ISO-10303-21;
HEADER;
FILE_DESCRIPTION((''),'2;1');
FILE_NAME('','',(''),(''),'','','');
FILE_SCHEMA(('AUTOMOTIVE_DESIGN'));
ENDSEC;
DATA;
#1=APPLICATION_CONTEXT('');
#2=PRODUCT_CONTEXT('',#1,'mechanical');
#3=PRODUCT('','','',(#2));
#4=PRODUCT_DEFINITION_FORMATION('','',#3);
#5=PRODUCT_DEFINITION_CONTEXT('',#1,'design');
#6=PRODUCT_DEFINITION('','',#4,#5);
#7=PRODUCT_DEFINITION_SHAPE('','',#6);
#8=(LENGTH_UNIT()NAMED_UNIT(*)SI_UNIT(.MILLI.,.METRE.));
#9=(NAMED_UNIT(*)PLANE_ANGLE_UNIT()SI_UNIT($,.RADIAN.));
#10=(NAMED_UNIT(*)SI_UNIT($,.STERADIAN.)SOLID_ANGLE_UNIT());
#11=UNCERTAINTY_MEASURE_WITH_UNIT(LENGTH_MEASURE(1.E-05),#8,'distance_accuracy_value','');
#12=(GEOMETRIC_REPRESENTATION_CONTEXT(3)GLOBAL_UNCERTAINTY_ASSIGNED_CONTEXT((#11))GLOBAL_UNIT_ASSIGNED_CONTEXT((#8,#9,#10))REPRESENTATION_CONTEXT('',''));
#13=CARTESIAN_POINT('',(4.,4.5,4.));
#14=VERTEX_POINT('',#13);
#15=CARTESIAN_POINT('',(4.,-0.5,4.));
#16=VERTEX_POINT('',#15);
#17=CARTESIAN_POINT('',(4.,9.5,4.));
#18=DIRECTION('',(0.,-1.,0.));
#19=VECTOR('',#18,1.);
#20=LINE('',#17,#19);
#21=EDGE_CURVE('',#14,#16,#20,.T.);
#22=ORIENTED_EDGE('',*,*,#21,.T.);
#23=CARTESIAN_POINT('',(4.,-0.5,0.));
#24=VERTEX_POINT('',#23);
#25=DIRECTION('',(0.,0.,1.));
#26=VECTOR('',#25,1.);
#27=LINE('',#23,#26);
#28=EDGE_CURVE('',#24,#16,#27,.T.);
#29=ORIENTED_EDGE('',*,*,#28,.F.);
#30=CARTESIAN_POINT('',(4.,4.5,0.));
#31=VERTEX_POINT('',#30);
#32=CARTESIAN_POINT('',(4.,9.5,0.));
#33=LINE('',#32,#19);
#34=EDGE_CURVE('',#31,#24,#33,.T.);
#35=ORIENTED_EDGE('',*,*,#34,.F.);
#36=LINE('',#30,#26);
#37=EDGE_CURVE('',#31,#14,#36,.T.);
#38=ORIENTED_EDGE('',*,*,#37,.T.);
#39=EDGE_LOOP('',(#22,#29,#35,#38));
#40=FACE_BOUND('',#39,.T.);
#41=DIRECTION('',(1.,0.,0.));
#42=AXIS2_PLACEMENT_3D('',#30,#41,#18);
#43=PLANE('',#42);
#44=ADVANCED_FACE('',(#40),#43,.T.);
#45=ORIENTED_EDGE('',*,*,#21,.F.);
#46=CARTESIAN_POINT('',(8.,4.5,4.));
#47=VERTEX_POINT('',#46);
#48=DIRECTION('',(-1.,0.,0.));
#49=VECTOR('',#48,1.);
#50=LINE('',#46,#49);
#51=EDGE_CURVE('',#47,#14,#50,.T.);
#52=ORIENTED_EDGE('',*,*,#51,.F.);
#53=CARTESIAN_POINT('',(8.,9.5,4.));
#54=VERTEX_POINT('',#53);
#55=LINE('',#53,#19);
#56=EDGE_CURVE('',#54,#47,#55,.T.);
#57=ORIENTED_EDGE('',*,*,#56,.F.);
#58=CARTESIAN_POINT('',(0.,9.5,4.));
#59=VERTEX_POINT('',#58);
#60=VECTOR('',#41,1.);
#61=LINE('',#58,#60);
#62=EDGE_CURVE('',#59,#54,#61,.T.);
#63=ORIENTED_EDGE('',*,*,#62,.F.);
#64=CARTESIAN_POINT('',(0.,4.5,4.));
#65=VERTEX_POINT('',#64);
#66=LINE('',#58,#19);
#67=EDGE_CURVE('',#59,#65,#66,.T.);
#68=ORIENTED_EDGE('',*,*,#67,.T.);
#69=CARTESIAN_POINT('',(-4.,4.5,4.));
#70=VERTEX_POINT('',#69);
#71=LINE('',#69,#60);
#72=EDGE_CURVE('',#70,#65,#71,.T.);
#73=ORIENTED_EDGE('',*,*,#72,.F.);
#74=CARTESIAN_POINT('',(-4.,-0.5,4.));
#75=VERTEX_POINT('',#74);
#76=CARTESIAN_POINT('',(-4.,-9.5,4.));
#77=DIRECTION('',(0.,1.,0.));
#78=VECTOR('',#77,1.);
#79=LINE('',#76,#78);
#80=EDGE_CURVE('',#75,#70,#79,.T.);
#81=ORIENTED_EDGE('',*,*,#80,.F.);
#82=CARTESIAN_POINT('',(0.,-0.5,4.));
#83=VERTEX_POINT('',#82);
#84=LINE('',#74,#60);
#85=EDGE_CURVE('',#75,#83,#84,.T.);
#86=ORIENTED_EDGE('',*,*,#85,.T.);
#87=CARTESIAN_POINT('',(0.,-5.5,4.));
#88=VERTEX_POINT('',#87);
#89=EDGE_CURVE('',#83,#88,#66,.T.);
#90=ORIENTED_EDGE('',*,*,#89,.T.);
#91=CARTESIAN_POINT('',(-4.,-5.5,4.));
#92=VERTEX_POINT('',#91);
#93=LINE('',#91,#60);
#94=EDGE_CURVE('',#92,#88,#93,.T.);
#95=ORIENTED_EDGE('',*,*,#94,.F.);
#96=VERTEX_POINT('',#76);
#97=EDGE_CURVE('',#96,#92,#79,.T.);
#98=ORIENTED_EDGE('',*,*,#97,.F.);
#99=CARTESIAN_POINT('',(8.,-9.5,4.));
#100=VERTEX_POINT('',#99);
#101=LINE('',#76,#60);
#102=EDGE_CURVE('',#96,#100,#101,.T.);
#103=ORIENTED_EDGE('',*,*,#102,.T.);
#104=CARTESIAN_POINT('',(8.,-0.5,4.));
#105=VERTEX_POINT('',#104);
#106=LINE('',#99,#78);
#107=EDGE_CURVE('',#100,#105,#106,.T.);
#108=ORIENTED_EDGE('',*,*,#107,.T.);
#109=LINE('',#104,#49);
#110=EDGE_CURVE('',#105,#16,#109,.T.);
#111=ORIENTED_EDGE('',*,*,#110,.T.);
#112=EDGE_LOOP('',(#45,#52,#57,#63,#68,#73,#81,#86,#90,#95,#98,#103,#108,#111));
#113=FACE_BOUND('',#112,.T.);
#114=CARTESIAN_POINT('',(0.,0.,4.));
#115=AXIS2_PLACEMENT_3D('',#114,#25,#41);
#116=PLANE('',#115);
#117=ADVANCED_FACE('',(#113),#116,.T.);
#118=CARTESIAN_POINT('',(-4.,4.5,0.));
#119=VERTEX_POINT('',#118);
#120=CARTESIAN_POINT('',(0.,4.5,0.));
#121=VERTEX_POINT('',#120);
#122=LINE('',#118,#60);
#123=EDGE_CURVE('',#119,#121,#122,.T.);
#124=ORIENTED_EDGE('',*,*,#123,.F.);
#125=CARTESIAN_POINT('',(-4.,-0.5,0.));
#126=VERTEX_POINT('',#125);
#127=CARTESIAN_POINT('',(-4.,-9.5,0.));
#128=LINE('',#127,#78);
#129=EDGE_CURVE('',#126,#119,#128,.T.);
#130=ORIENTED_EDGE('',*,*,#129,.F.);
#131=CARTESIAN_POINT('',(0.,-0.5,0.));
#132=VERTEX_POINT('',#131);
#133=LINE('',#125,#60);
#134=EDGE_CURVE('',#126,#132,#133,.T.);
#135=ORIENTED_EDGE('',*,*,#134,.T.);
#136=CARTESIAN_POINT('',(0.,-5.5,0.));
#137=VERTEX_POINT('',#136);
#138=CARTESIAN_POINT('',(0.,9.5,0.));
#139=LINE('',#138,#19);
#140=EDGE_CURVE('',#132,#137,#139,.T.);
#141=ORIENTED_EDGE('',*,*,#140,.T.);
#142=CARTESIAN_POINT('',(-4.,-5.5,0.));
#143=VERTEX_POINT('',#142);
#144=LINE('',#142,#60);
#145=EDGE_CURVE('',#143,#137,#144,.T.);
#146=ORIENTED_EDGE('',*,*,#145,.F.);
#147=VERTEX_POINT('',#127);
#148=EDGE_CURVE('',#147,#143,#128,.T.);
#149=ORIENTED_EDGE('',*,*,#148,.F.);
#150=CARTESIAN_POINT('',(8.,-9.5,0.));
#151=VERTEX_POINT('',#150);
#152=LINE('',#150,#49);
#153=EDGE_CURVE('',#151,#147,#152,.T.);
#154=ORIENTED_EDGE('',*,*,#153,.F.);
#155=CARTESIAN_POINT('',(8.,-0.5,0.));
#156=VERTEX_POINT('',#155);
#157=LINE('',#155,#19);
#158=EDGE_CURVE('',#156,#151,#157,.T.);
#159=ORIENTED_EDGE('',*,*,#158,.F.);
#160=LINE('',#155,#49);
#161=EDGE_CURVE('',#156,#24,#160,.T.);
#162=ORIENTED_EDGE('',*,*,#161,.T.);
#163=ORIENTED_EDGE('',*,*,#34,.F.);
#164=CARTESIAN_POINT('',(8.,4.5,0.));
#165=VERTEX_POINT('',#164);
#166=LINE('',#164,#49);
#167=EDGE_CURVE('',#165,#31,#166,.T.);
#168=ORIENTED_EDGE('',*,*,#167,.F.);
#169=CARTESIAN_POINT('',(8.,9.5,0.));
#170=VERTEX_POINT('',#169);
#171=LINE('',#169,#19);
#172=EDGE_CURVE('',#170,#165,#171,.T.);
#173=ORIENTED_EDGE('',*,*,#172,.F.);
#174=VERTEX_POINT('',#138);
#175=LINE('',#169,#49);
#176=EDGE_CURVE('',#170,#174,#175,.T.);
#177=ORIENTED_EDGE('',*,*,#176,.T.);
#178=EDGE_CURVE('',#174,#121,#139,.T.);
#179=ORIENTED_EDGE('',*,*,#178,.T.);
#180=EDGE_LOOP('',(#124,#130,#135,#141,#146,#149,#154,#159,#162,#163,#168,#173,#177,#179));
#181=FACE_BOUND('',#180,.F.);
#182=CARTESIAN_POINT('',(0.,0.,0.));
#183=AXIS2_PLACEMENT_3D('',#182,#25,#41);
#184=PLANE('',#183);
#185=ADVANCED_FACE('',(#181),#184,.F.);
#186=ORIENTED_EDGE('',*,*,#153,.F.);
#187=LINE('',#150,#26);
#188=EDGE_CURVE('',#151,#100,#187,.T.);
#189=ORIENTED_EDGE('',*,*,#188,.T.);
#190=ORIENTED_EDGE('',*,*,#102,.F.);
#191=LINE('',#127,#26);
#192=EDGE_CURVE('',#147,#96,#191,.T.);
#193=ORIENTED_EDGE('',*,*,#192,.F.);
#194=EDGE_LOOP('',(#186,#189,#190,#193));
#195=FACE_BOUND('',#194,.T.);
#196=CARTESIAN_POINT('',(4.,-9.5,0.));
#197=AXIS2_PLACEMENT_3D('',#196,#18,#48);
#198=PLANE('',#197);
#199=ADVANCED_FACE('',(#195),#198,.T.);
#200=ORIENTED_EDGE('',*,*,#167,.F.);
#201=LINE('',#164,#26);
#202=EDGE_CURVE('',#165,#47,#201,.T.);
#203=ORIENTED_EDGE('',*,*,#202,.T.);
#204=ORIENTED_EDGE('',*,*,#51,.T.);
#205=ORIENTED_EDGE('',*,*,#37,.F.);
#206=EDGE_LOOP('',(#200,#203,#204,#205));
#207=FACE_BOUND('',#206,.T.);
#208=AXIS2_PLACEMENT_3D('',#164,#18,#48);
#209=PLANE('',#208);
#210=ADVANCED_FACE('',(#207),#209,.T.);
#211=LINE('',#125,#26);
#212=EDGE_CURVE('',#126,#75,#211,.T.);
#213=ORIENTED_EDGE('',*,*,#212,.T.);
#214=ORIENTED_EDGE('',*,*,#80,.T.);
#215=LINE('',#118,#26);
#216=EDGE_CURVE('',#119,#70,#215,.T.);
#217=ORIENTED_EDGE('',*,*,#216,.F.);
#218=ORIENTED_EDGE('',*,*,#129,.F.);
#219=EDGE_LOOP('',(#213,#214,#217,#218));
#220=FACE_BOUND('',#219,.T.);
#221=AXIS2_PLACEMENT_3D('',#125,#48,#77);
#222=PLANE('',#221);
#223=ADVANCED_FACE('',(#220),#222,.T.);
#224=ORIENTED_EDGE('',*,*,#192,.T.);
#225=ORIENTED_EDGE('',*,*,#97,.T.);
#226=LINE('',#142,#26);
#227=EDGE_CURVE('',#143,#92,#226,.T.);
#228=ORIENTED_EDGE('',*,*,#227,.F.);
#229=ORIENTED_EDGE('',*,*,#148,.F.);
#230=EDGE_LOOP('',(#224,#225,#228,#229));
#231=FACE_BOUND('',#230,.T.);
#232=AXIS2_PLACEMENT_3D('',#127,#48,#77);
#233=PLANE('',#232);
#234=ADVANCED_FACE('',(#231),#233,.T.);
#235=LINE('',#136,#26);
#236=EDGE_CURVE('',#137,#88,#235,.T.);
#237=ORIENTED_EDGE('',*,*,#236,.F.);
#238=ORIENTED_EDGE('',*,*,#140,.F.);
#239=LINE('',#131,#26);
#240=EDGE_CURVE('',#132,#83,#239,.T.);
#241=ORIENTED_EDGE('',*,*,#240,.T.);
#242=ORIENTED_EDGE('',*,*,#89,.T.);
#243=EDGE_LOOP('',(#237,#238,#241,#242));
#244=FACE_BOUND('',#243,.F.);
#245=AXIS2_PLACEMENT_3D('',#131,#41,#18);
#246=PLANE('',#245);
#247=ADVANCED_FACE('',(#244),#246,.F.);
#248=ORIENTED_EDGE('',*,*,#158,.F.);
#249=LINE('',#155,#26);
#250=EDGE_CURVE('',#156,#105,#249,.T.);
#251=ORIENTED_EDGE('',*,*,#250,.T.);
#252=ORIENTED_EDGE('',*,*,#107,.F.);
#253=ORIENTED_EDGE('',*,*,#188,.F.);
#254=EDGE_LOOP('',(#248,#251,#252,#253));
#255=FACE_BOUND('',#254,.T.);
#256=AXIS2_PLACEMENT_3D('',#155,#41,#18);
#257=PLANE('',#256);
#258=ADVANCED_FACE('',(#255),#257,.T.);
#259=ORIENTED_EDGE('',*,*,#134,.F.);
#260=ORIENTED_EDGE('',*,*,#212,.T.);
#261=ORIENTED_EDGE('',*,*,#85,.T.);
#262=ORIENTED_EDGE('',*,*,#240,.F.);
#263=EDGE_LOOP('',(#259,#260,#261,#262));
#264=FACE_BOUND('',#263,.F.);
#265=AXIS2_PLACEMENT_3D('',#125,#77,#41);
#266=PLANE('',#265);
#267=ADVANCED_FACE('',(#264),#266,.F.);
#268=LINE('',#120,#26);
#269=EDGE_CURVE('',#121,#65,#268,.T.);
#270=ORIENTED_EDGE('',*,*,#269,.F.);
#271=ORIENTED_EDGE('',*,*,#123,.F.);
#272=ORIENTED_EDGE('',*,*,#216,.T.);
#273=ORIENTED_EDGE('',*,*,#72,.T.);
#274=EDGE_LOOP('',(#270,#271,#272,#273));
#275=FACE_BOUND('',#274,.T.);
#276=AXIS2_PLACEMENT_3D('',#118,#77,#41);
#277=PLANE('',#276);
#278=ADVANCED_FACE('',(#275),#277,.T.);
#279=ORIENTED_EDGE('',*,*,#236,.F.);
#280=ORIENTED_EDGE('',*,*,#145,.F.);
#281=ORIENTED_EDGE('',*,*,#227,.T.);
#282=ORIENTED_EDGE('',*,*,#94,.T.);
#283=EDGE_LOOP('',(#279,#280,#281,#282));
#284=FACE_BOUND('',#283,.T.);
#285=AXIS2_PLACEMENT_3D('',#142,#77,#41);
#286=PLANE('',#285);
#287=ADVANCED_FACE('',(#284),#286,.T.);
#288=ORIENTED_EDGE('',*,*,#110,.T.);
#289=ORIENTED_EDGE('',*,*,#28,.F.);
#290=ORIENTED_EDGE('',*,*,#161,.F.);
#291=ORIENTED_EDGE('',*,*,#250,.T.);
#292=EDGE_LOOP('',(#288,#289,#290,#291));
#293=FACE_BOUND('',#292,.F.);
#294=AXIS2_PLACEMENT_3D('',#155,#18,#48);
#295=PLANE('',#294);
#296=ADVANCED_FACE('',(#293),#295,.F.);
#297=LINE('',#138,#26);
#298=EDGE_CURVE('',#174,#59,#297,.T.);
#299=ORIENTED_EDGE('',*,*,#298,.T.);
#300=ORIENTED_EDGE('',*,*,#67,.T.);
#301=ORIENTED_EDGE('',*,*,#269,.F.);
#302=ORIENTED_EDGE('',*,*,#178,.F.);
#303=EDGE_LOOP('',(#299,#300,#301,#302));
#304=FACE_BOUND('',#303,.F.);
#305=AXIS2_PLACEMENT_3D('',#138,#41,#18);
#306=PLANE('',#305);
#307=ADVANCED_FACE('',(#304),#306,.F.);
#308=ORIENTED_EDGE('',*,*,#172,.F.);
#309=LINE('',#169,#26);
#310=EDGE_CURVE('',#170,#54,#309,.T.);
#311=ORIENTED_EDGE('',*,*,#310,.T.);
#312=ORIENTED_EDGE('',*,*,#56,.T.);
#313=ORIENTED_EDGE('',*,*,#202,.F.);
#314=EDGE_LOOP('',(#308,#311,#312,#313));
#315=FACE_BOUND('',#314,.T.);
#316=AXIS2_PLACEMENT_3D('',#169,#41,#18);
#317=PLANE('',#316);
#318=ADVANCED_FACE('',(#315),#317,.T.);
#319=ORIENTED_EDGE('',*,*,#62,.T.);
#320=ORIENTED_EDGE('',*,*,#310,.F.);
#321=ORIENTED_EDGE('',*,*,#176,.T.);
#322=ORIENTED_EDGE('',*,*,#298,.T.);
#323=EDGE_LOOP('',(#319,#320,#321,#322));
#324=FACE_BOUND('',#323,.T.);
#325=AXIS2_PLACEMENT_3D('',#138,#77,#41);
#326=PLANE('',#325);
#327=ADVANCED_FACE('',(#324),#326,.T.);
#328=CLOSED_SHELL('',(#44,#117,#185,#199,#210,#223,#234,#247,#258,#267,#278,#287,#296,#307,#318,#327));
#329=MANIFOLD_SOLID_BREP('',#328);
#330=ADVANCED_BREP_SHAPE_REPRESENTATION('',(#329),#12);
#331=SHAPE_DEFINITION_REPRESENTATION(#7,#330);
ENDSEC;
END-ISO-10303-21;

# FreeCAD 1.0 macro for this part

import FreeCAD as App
import Part
import Sketcher
from FreeCAD import Vector

doc = App.newDocument("Part")
body = doc.addObject("PartDesign::Body", "Body")

sketch1 = doc.addObject("Sketcher::SketchObject", "Sketch")
body.addObject(sketch1)
sketch1.AttachmentSupport = (doc.XY_Plane, [""])
sketch1.MapMode = "FlatFace"
sketch1.addGeometry(Part.LineSegment(Vector(0, 9.5, 0), Vector(0, 4.5, 0)), False)
sketch1.addGeometry(Part.LineSegment(Vector(0, 4.5, 0), Vector(-4, 4.5, 0)), False)
sketch1.addGeometry(Part.LineSegment(Vector(-4, 4.5, 0), Vector(-4, -0.5, 0)), False)
sketch1.addGeometry(Part.LineSegment(Vector(-4, -0.5, 0), Vector(0, -0.5, 0)), False)
sketch1.addGeometry(Part.LineSegment(Vector(0, -0.5, 0), Vector(0, -5.5, 0)), False)
sketch1.addGeometry(Part.LineSegment(Vector(0, -5.5, 0), Vector(-4, -5.5, 0)), False)
sketch1.addGeometry(Part.LineSegment(Vector(-4, -5.5, 0), Vector(-4, -9.5, 0)), False)
sketch1.addGeometry(Part.LineSegment(Vector(-4, -9.5, 0), Vector(8, -9.5, 0)), False)
sketch1.addGeometry(Part.LineSegment(Vector(8, -9.5, 0), Vector(8, -0.5, 0)), False)
sketch1.addGeometry(Part.LineSegment(Vector(8, -0.5, 0), Vector(4, -0.5, 0)), False)
sketch1.addGeometry(Part.LineSegment(Vector(4, -0.5, 0), Vector(4, 4.5, 0)), False)
sketch1.addGeometry(Part.LineSegment(Vector(4, 4.5, 0), Vector(8, 4.5, 0)), False)
sketch1.addGeometry(Part.LineSegment(Vector(8, 4.5, 0), Vector(8, 9.5, 0)), False)
sketch1.addGeometry(Part.LineSegment(Vector(8, 9.5, 0), Vector(0, 9.5, 0)), False)
sketch1.addConstraint(Sketcher.Constraint("Coincident", 0, 2, 1, 1))
sketch1.addConstraint(Sketcher.Constraint("Coincident", 1, 2, 2, 1))
sketch1.addConstraint(Sketcher.Constraint("Coincident", 2, 2, 3, 1))
sketch1.addConstraint(Sketcher.Constraint("Coincident", 3, 2, 4, 1))
sketch1.addConstraint(Sketcher.Constraint("Coincident", 4, 2, 5, 1))
sketch1.addConstraint(Sketcher.Constraint("Coincident", 5, 2, 6, 1))
sketch1.addConstraint(Sketcher.Constraint("Coincident", 6, 2, 7, 1))
sketch1.addConstraint(Sketcher.Constraint("Coincident", 7, 2, 8, 1))
sketch1.addConstraint(Sketcher.Constraint("Coincident", 8, 2, 9, 1))
sketch1.addConstraint(Sketcher.Constraint("Coincident", 9, 2, 10, 1))
sketch1.addConstraint(Sketcher.Constraint("Coincident", 10, 2, 11, 1))
sketch1.addConstraint(Sketcher.Constraint("Coincident", 11, 2, 12, 1))
sketch1.addConstraint(Sketcher.Constraint("Coincident", 12, 2, 13, 1))
sketch1.addConstraint(Sketcher.Constraint("Coincident", 13, 2, 0, 1))
sketch1.addConstraint(Sketcher.Constraint("Vertical", 0))
sketch1.addConstraint(Sketcher.Constraint("Horizontal", 1))
sketch1.addConstraint(Sketcher.Constraint("Vertical", 2))
sketch1.addConstraint(Sketcher.Constraint("Horizontal", 3))
sketch1.addConstraint(Sketcher.Constraint("Vertical", 4))
sketch1.addConstraint(Sketcher.Constraint("Horizontal", 5))
sketch1.addConstraint(Sketcher.Constraint("Vertical", 6))
sketch1.addConstraint(Sketcher.Constraint("Horizontal", 7))
sketch1.addConstraint(Sketcher.Constraint("Vertical", 8))
sketch1.addConstraint(Sketcher.Constraint("Horizontal", 9))
sketch1.addConstraint(Sketcher.Constraint("Vertical", 10))
sketch1.addConstraint(Sketcher.Constraint("Horizontal", 11))
sketch1.addConstraint(Sketcher.Constraint("Vertical", 12))
sketch1.addConstraint(Sketcher.Constraint("Horizontal", 13))
sketch1.addConstraint(Sketcher.Constraint("Symmetric", 2, 2, 9, 2, -2))
sketch1.addConstraint(Sketcher.Constraint("Symmetric", 7, 2, 12, 2, -1))
sketch1.addConstraint(Sketcher.Constraint("PointOnObject", 0, 2, -2))
sketch1.addConstraint(Sketcher.Constraint("PointOnObject", 3, 2, -2))
sketch1.addConstraint(Sketcher.Constraint("Horizontal", 1, 2, 10, 2))
sketch1.addConstraint(Sketcher.Constraint("Vertical", 2, 2, 5, 2))
sketch1.addConstraint(Sketcher.Constraint("Equal", 5, 9))
sketch1.addConstraint(Sketcher.Constraint("Equal", 0, 2))
sketch1.addConstraint(Sketcher.Constraint("Equal", 2, 4))
sketch1.addConstraint(Sketcher.Constraint("Equal", 11, 6))
sketch1.addConstraint(Sketcher.Constraint("DistanceX", 1, 2, 1, 1, 4.0))
sketch1.addConstraint(Sketcher.Constraint("DistanceY", 0, 2, 0, 1, 5.0))
pad1 = doc.addObject("PartDesign::Pad", "Pad")
body.addObject(pad1)
pad1.Profile = sketch1
pad1.Length = 4

doc.recompute()
